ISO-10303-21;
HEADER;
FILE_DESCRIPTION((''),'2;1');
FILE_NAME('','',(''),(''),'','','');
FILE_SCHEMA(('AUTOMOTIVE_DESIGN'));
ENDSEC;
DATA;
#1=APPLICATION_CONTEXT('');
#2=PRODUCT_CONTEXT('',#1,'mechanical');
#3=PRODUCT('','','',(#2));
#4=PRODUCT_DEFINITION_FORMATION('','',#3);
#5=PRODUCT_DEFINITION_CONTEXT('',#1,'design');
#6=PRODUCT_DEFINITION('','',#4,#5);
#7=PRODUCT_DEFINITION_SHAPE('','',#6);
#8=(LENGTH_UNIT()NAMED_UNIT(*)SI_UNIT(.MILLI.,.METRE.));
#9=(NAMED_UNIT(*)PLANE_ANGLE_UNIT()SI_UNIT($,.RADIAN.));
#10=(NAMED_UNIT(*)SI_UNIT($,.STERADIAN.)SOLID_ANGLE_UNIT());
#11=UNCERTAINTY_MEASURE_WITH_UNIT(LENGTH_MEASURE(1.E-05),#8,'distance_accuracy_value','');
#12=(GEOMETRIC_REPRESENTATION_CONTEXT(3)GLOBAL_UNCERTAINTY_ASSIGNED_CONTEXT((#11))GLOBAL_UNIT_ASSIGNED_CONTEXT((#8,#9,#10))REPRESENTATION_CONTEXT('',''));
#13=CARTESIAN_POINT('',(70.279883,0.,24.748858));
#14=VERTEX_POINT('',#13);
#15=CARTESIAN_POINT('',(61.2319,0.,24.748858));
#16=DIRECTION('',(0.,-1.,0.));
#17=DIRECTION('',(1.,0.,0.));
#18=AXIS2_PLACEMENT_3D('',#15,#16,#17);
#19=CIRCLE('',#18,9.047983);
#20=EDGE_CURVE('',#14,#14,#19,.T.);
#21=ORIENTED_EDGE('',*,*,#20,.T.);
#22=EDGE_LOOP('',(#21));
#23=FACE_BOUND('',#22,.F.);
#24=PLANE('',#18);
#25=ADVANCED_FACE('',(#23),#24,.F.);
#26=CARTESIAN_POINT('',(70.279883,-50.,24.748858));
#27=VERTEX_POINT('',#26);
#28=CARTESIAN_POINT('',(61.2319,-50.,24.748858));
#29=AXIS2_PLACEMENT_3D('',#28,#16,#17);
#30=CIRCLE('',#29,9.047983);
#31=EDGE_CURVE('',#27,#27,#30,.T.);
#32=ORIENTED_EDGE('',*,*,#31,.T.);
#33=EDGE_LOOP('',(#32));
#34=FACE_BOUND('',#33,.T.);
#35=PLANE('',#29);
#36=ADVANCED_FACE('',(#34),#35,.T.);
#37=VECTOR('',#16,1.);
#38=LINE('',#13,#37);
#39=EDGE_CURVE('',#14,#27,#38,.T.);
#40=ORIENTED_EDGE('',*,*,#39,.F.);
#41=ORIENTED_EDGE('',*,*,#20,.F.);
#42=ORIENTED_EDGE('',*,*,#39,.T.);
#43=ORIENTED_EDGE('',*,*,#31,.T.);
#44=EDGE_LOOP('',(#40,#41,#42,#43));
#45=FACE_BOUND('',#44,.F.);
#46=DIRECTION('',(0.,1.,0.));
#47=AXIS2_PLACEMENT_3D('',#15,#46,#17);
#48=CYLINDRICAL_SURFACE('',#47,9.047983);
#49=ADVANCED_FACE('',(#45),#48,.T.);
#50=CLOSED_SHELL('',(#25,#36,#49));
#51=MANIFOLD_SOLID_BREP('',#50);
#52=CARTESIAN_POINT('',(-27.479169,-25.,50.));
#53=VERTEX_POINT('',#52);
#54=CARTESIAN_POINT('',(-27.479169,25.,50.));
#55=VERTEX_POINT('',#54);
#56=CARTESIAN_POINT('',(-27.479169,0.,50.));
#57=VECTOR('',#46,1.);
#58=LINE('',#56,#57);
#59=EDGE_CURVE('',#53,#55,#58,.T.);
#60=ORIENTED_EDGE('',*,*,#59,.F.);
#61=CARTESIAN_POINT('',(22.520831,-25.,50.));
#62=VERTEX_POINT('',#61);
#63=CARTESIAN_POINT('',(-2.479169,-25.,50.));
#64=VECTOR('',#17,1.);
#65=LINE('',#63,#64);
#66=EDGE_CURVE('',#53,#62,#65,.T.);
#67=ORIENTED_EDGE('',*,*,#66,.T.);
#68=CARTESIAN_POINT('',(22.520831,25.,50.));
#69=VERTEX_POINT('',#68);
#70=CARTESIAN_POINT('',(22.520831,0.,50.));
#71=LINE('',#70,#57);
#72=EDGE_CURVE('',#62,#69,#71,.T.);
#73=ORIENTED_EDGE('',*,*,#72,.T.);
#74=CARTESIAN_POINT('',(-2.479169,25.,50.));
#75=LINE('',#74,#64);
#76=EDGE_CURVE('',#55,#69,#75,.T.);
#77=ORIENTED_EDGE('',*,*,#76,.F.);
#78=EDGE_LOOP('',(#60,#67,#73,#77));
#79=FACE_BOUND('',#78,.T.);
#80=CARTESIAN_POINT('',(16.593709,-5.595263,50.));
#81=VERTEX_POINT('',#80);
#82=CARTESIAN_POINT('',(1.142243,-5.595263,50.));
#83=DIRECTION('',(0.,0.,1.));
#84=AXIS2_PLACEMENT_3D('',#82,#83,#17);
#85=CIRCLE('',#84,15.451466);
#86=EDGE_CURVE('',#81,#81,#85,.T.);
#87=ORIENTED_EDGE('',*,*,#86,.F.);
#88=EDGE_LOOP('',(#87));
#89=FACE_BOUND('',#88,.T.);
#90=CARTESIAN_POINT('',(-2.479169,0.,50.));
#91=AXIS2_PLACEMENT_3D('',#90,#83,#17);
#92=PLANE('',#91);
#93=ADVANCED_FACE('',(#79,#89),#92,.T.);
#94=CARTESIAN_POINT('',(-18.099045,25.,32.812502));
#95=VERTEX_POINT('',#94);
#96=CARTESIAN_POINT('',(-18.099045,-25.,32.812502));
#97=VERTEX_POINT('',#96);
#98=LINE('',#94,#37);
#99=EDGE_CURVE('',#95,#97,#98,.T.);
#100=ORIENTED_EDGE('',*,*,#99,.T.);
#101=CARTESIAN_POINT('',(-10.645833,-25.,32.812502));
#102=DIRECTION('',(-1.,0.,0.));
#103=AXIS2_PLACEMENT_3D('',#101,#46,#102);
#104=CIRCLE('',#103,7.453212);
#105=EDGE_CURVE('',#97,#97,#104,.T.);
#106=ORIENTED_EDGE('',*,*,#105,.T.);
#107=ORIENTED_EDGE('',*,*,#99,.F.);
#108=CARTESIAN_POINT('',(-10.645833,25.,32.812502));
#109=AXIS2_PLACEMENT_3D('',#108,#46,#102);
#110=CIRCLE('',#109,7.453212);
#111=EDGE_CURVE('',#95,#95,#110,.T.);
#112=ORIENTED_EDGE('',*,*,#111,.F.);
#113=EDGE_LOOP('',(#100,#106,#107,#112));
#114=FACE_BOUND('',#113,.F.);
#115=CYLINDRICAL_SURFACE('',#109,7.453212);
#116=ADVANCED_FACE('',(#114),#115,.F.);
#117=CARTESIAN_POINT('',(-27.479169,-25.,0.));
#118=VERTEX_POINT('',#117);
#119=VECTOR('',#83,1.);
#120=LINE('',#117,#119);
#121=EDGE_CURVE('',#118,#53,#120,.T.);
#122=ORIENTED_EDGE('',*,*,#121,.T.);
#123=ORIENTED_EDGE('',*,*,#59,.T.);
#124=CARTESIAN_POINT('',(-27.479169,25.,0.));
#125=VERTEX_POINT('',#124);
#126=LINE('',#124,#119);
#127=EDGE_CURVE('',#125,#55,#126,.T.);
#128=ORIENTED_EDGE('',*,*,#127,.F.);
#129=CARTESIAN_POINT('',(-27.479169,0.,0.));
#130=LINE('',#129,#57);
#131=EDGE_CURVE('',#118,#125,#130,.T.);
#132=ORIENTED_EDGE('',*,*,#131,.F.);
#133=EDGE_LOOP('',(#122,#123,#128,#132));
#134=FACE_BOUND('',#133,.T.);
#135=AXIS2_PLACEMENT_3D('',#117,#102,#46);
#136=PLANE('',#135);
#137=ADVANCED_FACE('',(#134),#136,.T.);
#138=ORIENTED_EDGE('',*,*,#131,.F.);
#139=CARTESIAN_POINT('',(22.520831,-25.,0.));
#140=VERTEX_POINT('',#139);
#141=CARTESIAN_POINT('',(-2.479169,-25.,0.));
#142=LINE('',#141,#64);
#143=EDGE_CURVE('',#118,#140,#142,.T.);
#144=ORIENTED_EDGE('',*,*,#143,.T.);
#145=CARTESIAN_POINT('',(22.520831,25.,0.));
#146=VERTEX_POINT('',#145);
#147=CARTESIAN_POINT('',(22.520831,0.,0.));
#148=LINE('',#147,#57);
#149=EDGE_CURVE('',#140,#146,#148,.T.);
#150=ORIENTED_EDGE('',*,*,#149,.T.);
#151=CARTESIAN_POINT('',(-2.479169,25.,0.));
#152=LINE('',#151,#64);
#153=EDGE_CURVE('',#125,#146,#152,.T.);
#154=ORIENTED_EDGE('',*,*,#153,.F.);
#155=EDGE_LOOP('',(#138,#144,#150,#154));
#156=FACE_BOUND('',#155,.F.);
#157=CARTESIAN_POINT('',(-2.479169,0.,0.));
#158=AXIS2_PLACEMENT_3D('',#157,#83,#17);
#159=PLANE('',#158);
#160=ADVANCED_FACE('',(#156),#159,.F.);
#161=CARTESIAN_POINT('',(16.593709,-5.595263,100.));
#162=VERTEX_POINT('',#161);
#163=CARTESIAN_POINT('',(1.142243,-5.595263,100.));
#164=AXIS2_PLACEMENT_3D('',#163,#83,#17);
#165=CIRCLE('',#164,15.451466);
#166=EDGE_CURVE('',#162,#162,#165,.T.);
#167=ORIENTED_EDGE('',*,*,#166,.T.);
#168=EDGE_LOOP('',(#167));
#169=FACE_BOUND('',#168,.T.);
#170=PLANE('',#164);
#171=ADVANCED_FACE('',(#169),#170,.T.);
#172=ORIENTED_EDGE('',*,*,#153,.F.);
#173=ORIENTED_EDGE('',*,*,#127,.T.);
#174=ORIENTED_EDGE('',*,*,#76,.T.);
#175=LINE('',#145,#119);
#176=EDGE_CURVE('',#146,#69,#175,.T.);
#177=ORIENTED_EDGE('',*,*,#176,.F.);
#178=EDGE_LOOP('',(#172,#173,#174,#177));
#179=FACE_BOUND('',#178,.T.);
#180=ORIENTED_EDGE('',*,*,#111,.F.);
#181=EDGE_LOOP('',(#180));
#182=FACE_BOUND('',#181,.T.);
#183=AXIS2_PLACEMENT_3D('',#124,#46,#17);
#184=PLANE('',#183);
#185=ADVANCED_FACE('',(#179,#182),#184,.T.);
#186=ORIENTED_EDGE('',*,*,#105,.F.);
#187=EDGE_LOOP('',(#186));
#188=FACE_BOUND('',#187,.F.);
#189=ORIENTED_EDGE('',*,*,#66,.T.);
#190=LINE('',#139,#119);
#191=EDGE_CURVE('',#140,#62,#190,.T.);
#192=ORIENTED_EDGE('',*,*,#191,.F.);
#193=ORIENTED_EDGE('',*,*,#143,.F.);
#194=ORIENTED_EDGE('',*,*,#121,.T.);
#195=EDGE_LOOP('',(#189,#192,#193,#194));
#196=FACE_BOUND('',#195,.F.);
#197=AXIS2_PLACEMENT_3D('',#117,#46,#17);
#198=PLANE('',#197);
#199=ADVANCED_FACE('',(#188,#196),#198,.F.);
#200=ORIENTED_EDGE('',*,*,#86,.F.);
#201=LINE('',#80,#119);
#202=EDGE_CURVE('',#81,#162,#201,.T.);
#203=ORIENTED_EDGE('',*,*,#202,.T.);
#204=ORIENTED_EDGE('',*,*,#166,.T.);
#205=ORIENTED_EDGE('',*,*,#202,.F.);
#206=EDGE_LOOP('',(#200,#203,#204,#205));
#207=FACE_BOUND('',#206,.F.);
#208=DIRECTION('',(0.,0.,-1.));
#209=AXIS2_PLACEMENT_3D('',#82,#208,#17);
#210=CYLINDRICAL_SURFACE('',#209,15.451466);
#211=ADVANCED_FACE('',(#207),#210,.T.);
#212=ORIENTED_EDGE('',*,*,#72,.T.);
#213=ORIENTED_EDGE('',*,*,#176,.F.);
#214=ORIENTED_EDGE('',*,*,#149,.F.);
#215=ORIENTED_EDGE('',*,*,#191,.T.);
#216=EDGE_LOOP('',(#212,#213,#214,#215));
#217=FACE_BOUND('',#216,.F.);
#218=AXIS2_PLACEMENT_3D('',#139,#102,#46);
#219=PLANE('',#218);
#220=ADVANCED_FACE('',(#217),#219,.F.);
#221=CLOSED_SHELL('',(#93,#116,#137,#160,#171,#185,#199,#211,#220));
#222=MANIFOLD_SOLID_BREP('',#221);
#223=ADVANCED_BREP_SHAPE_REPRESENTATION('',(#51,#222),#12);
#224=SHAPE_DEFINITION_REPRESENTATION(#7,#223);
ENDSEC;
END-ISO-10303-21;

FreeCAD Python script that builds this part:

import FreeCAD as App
import Part
import Sketcher
from FreeCAD import Vector

doc = App.newDocument("Part")
body = doc.addObject("PartDesign::Body", "Body")

# Sketch on XY plane
sketch1 = body.newObject("Sketcher::SketchObject", "Sketch")
sketch1.AttachmentSupport = (doc.getObject("XY_Plane"), [""])
sketch1.MapMode = "FlatFace"
sketch1.addGeometry([
    Part.LineSegment(Vector(-27, 25, 0), Vector(-27, -25, 0)),
    Part.LineSegment(Vector(-27, -25, 0), Vector(23, -25, 0)),
    Part.LineSegment(Vector(23, -25, 0), Vector(23, 25, 0)),
    Part.LineSegment(Vector(23, 25, 0), Vector(-27, 25, 0)),
], False)
sketch1.addConstraint([
    Sketcher.Constraint("Coincident", 0, 2, 1, 1),
    Sketcher.Constraint("Coincident", 1, 2, 2, 1),
    Sketcher.Constraint("Coincident", 2, 2, 3, 1),
    Sketcher.Constraint("Coincident", 3, 2, 0, 1),
    Sketcher.Constraint("Vertical", 0),
    Sketcher.Constraint("Horizontal", 1),
    Sketcher.Constraint("Vertical", 2),
    Sketcher.Constraint("Horizontal", 3),
    Sketcher.Constraint("Equal", 3, 0),
    Sketcher.Constraint("DistanceX", 1, 1, 1, 2, 50.0),
    Sketcher.Constraint("DistanceY", 0, 2, -1, 1, 25.0),
    Sketcher.Constraint("DistanceX", 0, 2, -1, 1, 27.479169),
])
pad1 = body.newObject("PartDesign::Pad", "Pad")
pad1.Profile = sketch1
pad1.Length = 50

# Sketch on XZ plane
sketch2 = body.newObject("Sketcher::SketchObject", "Sketch001")
sketch2.AttachmentSupport = (doc.getObject("XZ_Plane"), [""])
sketch2.MapMode = "FlatFace"
sketch2.AttachmentOffset = App.Placement(Vector(0, 0, -25), App.Rotation())
sketch2.addGeometry(Part.Circle(Vector(-11, 33, 0), Vector(0, 0, 1), 7), False)
sketch2.addConstraint([
    Sketcher.Constraint("Diameter", 0, 14.906424),
    Sketcher.Constraint("DistanceX", 0, 3, -1, 1, 10.645833),
    Sketcher.Constraint("DistanceY", -1, 1, 0, 3, 32.812502),
])
pocket1 = body.newObject("PartDesign::Pocket", "Pocket")
pocket1.Profile = sketch2
pocket1.Length = 60
pocket1.Reversed = True

# Sketch on XY plane
sketch3 = body.newObject("Sketcher::SketchObject", "Sketch002")
sketch3.AttachmentSupport = (doc.getObject("XY_Plane"), [""])
sketch3.MapMode = "FlatFace"
sketch3.AttachmentOffset = App.Placement(Vector(0, 0, 50), App.Rotation())
sketch3.addGeometry(Part.Circle(Vector(1, -6, 0), Vector(0, 0, 1), 15), False)
sketch3.addConstraint([
    Sketcher.Constraint("Diameter", 0, 30.902932),
    Sketcher.Constraint("DistanceX", -1, 1, 0, 3, 1.142243),
    Sketcher.Constraint("DistanceY", 0, 3, -1, 1, 5.595263),
])
pad2 = body.newObject("PartDesign::Pad", "Pad001")
pad2.Profile = sketch3
pad2.Length = 50
body2 = doc.addObject("PartDesign::Body", "Body001")

# Sketch on XZ plane
sketch4 = body2.newObject("Sketcher::SketchObject", "Sketch003")
sketch4.AttachmentSupport = (doc.getObject("XZ_Plane001"), [""])
sketch4.MapMode = "FlatFace"
sketch4.addGeometry(Part.Circle(Vector(61, 25, 0), Vector(0, 0, 1), 9), False)
sketch4.addConstraint([
    Sketcher.Constraint("Diameter", 0, 18.095966),
    Sketcher.Constraint("DistanceX", -1, 1, 0, 3, 61.2319),
    Sketcher.Constraint("DistanceY", -1, 1, 0, 3, 24.748858),
])
pad3 = body2.newObject("PartDesign::Pad", "Pad002")
pad3.Profile = sketch4
pad3.Length = 50

doc.recompute()
